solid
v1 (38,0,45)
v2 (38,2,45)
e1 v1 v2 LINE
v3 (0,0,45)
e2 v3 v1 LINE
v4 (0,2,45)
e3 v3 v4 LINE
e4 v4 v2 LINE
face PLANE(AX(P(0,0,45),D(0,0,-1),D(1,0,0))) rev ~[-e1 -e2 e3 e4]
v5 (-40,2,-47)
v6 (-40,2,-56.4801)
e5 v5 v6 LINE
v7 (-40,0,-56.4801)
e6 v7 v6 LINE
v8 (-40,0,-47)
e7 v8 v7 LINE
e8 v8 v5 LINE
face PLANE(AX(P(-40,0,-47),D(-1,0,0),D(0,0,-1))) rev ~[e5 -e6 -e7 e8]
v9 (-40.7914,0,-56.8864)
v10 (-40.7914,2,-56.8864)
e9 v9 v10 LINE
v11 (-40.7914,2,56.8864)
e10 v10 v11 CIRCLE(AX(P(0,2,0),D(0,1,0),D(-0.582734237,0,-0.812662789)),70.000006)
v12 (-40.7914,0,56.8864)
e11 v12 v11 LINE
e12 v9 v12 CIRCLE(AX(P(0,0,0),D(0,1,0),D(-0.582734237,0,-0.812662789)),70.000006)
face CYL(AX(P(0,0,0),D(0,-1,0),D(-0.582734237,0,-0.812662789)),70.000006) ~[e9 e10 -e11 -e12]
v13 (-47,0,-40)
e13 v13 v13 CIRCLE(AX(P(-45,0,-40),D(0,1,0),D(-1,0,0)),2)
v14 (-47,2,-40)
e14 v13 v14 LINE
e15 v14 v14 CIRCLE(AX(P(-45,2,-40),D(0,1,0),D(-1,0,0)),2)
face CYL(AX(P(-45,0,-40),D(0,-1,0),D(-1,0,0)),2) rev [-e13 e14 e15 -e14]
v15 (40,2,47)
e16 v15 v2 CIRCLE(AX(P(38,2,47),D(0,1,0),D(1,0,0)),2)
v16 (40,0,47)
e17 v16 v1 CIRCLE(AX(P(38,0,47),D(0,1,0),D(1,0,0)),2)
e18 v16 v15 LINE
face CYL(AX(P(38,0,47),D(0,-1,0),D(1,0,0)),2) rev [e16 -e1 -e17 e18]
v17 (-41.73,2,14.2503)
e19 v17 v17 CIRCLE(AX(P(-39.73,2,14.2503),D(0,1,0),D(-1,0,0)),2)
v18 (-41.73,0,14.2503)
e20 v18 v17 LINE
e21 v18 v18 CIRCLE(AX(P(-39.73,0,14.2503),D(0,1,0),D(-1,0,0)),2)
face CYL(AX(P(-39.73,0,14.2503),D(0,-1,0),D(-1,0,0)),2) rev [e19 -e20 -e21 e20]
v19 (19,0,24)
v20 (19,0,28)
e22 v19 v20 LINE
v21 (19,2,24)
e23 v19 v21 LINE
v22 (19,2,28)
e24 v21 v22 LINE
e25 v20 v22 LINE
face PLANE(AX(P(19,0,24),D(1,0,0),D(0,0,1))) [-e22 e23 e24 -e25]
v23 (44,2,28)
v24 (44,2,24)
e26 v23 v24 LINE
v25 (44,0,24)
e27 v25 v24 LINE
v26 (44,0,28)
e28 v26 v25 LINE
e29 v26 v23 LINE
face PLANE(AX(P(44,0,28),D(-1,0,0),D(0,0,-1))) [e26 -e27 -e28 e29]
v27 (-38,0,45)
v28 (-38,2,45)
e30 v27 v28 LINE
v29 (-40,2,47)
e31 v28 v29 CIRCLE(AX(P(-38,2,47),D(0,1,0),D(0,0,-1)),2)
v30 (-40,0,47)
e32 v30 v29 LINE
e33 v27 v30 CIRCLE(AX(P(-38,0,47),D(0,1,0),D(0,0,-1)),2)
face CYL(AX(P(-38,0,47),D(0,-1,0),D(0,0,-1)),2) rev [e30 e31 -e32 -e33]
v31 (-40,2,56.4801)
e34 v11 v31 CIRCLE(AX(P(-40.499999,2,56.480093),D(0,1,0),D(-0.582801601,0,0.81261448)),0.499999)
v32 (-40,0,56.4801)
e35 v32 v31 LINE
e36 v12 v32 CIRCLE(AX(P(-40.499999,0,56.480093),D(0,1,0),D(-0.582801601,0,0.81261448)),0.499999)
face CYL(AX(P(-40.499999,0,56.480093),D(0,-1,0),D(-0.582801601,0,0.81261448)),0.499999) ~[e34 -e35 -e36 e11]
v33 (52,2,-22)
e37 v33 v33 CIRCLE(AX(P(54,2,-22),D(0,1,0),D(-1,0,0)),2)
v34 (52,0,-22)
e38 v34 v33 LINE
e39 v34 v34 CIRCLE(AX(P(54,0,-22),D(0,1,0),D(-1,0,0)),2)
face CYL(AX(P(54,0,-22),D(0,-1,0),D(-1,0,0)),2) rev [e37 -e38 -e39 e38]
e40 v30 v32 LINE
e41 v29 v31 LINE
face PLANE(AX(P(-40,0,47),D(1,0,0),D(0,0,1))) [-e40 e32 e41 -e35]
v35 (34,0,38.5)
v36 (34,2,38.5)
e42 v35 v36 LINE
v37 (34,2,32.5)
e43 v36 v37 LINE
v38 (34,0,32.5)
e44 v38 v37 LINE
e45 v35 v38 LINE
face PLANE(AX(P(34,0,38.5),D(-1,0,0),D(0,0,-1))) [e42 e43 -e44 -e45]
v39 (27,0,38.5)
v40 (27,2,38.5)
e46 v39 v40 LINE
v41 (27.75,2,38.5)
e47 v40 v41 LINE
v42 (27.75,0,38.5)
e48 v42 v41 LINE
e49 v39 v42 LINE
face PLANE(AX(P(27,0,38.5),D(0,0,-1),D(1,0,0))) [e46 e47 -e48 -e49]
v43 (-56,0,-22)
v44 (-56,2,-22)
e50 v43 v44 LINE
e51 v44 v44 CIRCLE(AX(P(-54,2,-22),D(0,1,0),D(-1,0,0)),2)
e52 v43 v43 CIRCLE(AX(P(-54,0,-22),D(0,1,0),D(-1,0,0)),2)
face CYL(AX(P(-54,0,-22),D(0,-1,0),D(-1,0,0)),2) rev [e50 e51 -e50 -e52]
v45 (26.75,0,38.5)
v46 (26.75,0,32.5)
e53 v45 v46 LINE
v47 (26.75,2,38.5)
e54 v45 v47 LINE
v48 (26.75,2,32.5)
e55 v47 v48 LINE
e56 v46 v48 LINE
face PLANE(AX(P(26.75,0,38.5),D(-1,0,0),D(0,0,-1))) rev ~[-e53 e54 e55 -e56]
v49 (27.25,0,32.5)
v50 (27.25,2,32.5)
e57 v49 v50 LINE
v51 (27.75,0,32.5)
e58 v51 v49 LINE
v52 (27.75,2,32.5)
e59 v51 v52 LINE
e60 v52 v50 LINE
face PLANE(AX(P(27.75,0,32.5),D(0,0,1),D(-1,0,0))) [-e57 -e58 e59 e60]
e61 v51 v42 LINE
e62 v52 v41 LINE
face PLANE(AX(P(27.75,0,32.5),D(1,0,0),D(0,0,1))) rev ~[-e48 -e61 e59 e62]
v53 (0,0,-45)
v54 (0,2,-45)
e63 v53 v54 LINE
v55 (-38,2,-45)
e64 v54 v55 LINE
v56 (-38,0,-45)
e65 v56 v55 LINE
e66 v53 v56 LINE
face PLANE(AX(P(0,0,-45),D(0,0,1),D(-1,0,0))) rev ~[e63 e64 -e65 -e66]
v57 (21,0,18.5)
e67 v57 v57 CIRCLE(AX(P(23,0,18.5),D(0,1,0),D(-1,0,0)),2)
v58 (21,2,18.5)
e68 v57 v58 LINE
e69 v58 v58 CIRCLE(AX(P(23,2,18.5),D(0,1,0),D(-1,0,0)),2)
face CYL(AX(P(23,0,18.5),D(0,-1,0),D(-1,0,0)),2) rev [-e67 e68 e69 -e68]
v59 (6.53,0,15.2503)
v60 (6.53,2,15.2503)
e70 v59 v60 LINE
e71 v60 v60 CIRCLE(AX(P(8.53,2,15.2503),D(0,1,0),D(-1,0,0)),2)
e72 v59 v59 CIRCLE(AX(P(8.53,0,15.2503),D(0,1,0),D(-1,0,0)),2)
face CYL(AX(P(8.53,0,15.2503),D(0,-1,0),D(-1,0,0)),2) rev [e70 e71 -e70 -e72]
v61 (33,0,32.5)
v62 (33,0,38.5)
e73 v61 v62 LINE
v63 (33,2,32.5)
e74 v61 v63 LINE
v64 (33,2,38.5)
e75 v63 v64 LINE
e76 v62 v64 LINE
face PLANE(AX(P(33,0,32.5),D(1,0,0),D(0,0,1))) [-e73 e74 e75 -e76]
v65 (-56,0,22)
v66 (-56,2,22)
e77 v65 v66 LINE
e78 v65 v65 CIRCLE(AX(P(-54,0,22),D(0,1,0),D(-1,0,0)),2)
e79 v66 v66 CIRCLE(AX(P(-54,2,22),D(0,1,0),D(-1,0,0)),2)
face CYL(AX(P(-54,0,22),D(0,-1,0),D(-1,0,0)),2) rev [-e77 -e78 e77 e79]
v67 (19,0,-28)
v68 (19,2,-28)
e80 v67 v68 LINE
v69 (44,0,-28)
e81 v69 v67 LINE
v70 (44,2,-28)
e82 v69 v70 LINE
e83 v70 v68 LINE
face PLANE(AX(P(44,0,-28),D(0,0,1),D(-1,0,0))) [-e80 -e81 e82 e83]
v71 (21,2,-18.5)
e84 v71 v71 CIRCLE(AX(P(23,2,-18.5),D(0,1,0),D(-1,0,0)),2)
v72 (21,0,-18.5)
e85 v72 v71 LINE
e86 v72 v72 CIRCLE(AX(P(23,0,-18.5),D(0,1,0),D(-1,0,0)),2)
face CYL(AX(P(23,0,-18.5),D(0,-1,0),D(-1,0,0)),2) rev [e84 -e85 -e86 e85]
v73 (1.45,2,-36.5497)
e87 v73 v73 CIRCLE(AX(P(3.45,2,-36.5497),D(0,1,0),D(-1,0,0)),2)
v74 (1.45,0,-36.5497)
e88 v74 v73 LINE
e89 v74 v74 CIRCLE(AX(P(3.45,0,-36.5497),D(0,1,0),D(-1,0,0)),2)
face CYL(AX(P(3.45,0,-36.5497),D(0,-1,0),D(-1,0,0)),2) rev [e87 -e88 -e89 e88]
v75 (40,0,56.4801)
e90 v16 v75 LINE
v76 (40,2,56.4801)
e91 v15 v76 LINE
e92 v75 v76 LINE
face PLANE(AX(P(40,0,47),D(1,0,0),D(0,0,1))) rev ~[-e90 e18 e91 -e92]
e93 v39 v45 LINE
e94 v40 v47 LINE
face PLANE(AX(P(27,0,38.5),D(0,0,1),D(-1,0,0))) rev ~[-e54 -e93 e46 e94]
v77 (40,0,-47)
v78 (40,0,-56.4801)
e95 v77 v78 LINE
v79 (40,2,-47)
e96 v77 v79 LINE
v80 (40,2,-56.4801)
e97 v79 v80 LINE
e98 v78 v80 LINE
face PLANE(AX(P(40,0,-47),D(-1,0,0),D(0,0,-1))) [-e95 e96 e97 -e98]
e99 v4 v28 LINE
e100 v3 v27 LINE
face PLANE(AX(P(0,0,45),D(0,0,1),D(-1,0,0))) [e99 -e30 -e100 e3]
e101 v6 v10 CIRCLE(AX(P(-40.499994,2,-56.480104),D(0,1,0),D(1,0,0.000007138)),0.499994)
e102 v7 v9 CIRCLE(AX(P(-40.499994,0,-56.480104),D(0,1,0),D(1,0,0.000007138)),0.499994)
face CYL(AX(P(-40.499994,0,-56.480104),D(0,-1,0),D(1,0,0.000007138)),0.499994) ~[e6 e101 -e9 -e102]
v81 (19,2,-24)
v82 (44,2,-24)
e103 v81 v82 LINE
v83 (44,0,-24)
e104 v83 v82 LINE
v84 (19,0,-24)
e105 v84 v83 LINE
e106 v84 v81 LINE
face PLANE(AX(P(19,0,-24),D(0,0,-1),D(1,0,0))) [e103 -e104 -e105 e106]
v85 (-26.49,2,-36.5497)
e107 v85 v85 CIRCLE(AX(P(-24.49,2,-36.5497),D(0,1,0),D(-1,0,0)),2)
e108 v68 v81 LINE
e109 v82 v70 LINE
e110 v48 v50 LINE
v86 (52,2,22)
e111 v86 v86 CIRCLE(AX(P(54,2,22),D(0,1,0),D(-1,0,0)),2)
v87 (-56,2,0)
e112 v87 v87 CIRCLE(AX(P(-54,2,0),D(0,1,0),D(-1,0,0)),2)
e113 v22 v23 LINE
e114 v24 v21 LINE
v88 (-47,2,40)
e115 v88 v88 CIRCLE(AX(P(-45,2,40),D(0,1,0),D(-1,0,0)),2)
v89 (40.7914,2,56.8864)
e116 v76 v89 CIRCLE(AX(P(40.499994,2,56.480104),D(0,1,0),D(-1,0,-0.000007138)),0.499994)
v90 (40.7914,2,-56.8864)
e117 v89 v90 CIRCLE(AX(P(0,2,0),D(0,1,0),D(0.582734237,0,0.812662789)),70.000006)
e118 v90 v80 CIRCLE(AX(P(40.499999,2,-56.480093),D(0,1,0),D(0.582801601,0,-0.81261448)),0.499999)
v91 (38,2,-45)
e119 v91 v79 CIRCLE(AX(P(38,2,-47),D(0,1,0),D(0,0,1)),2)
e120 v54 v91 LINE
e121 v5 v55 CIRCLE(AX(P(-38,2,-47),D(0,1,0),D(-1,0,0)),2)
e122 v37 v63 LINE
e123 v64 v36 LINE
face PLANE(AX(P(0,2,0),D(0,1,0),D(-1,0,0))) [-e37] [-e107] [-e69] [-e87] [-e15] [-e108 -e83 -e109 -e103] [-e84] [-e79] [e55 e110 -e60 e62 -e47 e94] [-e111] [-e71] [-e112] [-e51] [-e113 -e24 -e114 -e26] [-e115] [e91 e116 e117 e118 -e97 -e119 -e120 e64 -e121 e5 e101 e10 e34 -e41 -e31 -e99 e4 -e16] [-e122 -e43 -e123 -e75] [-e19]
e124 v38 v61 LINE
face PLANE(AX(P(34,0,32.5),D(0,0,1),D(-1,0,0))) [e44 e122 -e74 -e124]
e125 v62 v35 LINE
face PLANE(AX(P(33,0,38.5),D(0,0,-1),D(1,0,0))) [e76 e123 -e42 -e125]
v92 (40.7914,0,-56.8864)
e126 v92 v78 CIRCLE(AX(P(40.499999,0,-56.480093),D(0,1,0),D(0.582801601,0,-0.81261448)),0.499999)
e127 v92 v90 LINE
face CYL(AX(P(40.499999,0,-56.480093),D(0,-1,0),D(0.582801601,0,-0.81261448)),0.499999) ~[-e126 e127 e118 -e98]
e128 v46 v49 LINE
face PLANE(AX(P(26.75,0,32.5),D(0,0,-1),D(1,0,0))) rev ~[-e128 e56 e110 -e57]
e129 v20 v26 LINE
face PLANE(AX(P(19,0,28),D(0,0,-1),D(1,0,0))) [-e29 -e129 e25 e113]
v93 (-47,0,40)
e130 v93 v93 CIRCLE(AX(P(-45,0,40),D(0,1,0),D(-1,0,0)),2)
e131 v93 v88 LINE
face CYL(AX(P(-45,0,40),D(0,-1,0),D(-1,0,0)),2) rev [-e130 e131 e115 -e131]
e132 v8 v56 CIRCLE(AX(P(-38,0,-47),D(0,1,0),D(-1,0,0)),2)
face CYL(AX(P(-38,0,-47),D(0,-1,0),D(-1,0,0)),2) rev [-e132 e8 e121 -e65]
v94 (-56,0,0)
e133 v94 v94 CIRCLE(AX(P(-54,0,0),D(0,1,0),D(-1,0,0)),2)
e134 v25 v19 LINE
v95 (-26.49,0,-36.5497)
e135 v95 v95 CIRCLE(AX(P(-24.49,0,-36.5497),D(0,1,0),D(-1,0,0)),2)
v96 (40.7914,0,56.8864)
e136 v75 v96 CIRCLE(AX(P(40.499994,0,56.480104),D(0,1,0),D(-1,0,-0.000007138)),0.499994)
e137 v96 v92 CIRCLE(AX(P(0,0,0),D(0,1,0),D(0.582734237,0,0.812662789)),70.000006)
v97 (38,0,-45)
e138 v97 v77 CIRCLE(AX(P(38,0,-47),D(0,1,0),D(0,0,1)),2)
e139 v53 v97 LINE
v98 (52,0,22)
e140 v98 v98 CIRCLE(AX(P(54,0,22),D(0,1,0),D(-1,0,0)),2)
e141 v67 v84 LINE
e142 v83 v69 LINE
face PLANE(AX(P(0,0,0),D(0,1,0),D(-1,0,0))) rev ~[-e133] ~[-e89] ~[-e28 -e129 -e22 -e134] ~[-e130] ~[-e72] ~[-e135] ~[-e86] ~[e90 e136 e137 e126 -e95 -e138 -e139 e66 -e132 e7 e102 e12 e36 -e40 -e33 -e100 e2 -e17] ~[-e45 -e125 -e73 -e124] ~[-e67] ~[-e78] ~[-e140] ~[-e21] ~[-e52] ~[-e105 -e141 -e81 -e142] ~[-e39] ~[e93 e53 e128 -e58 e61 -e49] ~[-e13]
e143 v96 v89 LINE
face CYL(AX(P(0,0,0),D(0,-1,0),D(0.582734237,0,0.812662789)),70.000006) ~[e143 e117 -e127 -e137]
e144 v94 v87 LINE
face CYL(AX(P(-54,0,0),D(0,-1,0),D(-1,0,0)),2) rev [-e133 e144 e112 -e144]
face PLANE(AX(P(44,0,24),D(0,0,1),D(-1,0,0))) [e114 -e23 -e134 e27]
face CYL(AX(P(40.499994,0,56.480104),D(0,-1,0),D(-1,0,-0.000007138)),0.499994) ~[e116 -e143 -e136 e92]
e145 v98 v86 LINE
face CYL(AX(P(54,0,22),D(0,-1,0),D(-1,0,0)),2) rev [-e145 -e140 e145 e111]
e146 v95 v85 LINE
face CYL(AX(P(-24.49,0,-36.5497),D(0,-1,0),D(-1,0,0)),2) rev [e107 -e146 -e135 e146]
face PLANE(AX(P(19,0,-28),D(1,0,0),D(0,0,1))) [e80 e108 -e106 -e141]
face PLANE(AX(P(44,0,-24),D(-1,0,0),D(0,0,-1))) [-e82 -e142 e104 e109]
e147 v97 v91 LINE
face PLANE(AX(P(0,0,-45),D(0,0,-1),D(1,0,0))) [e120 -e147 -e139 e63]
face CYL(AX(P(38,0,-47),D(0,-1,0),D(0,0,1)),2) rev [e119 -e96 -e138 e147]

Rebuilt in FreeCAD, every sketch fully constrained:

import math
import FreeCAD as App
import Part
import Sketcher
from FreeCAD import Vector


def add_polygon(sketch, points):
    """Adds a closed chain of lines whose ends are joined by coincident constraints."""
    first, n = sketch.GeometryCount, len(points)
    for a, b in zip(points, points[1:] + points[:1]):
        sketch.addGeometry(Part.LineSegment(App.Vector(*a, 0), App.Vector(*b, 0)), False)
    for i in range(n):
        sketch.addConstraint(Sketcher.Constraint("Coincident", first + i, 2, first + (i + 1) % n, 1))

doc = App.newDocument("Part")
body = doc.addObject("PartDesign::Body", "Body")

# Sketch on XZ plane
sketch1 = body.newObject("Sketcher::SketchObject", "Sketch")
sketch1.AttachmentSupport = (doc.getObject("XZ_Plane"), [""])
sketch1.MapMode = "FlatFace"
sketch1.addGeometry(Part.ArcOfCircle(Part.Circle(Vector(40.5, 56.4801, 0), Vector(0, 0, 1), 0.5), math.radians(54.351756), math.radians(180)), False)  # 0
sketch1.addGeometry(Part.ArcOfCircle(Part.Circle(Vector(0, 0, 0), Vector(0, 0, 1), 70.000006), math.radians(-54.356915), math.radians(54.356915)), False)  # 1
sketch1.addGeometry(Part.ArcOfCircle(Part.Circle(Vector(40.5, -56.4801, 0), Vector(0, 0, 1), 0.499994), math.radians(180), math.radians(305.648244)), False)  # 2
sketch1.addGeometry(Part.LineSegment(Vector(40, -56.4801, 0), Vector(40, -47, 0)), False)  # 3
sketch1.addGeometry(Part.ArcOfCircle(Part.Circle(Vector(38, -47, 0), Vector(0, 0, 1), 2), math.radians(0), math.radians(90)), False)  # 4
sketch1.addGeometry(Part.LineSegment(Vector(38, -45, 0), Vector(-38, -45, 0)), False)  # 5
sketch1.addGeometry(Part.ArcOfCircle(Part.Circle(Vector(-38, -47, 0), Vector(0, 0, 1), 2), math.radians(90), math.radians(180)), False)  # 6
sketch1.addGeometry(Part.LineSegment(Vector(-40, -47, 0), Vector(-40, -56.4801, 0)), False)  # 7
sketch1.addGeometry(Part.ArcOfCircle(Part.Circle(Vector(-40.5, -56.4801, 0), Vector(0, 0, 1), 0.5), math.radians(-125.648244), math.radians(0)), False)  # 8
sketch1.addGeometry(Part.ArcOfCircle(Part.Circle(Vector(0, 0, 0), Vector(0, 0, 1), 70.000006), math.radians(125.643085), math.radians(234.356915)), False)  # 9
sketch1.addGeometry(Part.ArcOfCircle(Part.Circle(Vector(-40.5, 56.4801, 0), Vector(0, 0, 1), 0.499994), math.radians(0), math.radians(125.648244)), False)  # 10
sketch1.addGeometry(Part.LineSegment(Vector(-40, 56.4801, 0), Vector(-40, 47, 0)), False)  # 11
sketch1.addGeometry(Part.ArcOfCircle(Part.Circle(Vector(-38, 47, 0), Vector(0, 0, 1), 2), math.radians(180), math.radians(270)), False)  # 12
sketch1.addGeometry(Part.LineSegment(Vector(-38, 45, 0), Vector(38, 45, 0)), False)  # 13
sketch1.addGeometry(Part.ArcOfCircle(Part.Circle(Vector(38, 47, 0), Vector(0, 0, 1), 2), math.radians(-90), math.radians(0)), False)  # 14
sketch1.addGeometry(Part.LineSegment(Vector(40, 47, 0), Vector(40, 56.4801, 0)), False)  # 15
sketch1.addGeometry(Part.Circle(Vector(3.45, -36.5497, 0), Vector(0, 0, 1), 2), False)  # 16
sketch1.addGeometry(Part.Circle(Vector(54, -22, 0), Vector(0, 0, 1), 2), False)  # 17
add_polygon(sketch1, [(44, -24), (19, -24), (19, -28), (44, -28)])  # lines 18-21
sketch1.addGeometry(Part.Circle(Vector(23, -18.5, 0), Vector(0, 0, 1), 2), False)  # 22
sketch1.addGeometry(Part.Circle(Vector(-24.49, -36.5497, 0), Vector(0, 0, 1), 2), False)  # 23
sketch1.addGeometry(Part.Circle(Vector(-45, -40, 0), Vector(0, 0, 1), 2), False)  # 24
sketch1.addGeometry(Part.Circle(Vector(-54, -22, 0), Vector(0, 0, 1), 2), False)  # 25
sketch1.addGeometry(Part.Circle(Vector(54, 22, 0), Vector(0, 0, 1), 2), False)  # 26
sketch1.addGeometry(Part.Circle(Vector(23, 18.5, 0), Vector(0, 0, 1), 2), False)  # 27
add_polygon(sketch1, [(44, 28), (19, 28), (19, 24), (44, 24)])  # lines 28-31
sketch1.addGeometry(Part.Circle(Vector(8.53, 15.2503, 0), Vector(0, 0, 1), 2), False)  # 32
add_polygon(sketch1, [(34, 38.5), (33, 38.5), (33, 32.5), (34, 32.5)])  # lines 33-36
add_polygon(sketch1, [(26.75, 32.5), (27.75, 32.5), (27.75, 38.5), (26.75, 38.5)])  # lines 37-40
sketch1.addGeometry(Part.Circle(Vector(-54, 0, 0), Vector(0, 0, 1), 2), False)  # 41
sketch1.addGeometry(Part.Circle(Vector(-39.73, 14.2503, 0), Vector(0, 0, 1), 2), False)  # 42
sketch1.addGeometry(Part.Circle(Vector(-54, 22, 0), Vector(0, 0, 1), 2), False)  # 43
sketch1.addGeometry(Part.Circle(Vector(-45, 40, 0), Vector(0, 0, 1), 2), False)  # 44
sketch1.addConstraint(Sketcher.Constraint("Tangent", 0, 1, 1, 2))
sketch1.addConstraint(Sketcher.Constraint("Tangent", 1, 1, 2, 2))
sketch1.addConstraint(Sketcher.Constraint("Tangent", 2, 1, 3, 1))
sketch1.addConstraint(Sketcher.Constraint("Tangent", 3, 2, 4, 1))
sketch1.addConstraint(Sketcher.Constraint("Tangent", 4, 2, 5, 1))
sketch1.addConstraint(Sketcher.Constraint("Tangent", 5, 2, 6, 1))
sketch1.addConstraint(Sketcher.Constraint("Tangent", 6, 2, 7, 1))
sketch1.addConstraint(Sketcher.Constraint("Tangent", 7, 2, 8, 2))
sketch1.addConstraint(Sketcher.Constraint("Tangent", 8, 1, 9, 2))
sketch1.addConstraint(Sketcher.Constraint("Tangent", 9, 1, 10, 2))
sketch1.addConstraint(Sketcher.Constraint("Tangent", 10, 1, 11, 1))
sketch1.addConstraint(Sketcher.Constraint("Tangent", 11, 2, 12, 1))
sketch1.addConstraint(Sketcher.Constraint("Tangent", 12, 2, 13, 1))
sketch1.addConstraint(Sketcher.Constraint("Tangent", 13, 2, 14, 1))
sketch1.addConstraint(Sketcher.Constraint("Tangent", 14, 2, 15, 1))
sketch1.addConstraint(Sketcher.Constraint("Tangent", 15, 2, 0, 2))
sketch1.addConstraint(Sketcher.Constraint("Vertical", 3))
sketch1.addConstraint(Sketcher.Constraint("Horizontal", 5))
sketch1.addConstraint(Sketcher.Constraint("Vertical", 7))
sketch1.addConstraint(Sketcher.Constraint("Vertical", 11))
sketch1.addConstraint(Sketcher.Constraint("Horizontal", 13))
sketch1.addConstraint(Sketcher.Constraint("Vertical", 15))
sketch1.addConstraint(Sketcher.Constraint("Horizontal", 18))
sketch1.addConstraint(Sketcher.Constraint("Vertical", 19))
sketch1.addConstraint(Sketcher.Constraint("Horizontal", 20))
sketch1.addConstraint(Sketcher.Constraint("Vertical", 21))
sketch1.addConstraint(Sketcher.Constraint("Horizontal", 28))
sketch1.addConstraint(Sketcher.Constraint("Vertical", 29))
sketch1.addConstraint(Sketcher.Constraint("Horizontal", 30))
sketch1.addConstraint(Sketcher.Constraint("Vertical", 31))
sketch1.addConstraint(Sketcher.Constraint("Horizontal", 33))
sketch1.addConstraint(Sketcher.Constraint("Vertical", 34))
sketch1.addConstraint(Sketcher.Constraint("Horizontal", 35))
sketch1.addConstraint(Sketcher.Constraint("Vertical", 36))
sketch1.addConstraint(Sketcher.Constraint("Horizontal", 37))
sketch1.addConstraint(Sketcher.Constraint("Vertical", 38))
sketch1.addConstraint(Sketcher.Constraint("Horizontal", 39))
sketch1.addConstraint(Sketcher.Constraint("Vertical", 40))
sketch1.addConstraint(Sketcher.Constraint("Coincident", 1, 3, -1, 1))
sketch1.addConstraint(Sketcher.Constraint("Coincident", 9, 3, -1, 1))
sketch1.addConstraint(Sketcher.Constraint("Equal", 0, 2))
sketch1.addConstraint(Sketcher.Constraint("Equal", 4, 6))
sketch1.addConstraint(Sketcher.Constraint("Equal", 2, 8))
sketch1.addConstraint(Sketcher.Constraint("Equal", 1, 9))
sketch1.addConstraint(Sketcher.Constraint("Equal", 8, 10))
sketch1.addConstraint(Sketcher.Constraint("Equal", 6, 12))
sketch1.addConstraint(Sketcher.Constraint("Equal", 12, 14))
sketch1.addConstraint(Sketcher.Constraint("Equal", 14, 16))
sketch1.addConstraint(Sketcher.Constraint("Equal", 16, 17))
sketch1.addConstraint(Sketcher.Constraint("Equal", 17, 22))
sketch1.addConstraint(Sketcher.Constraint("Equal", 22, 23))
sketch1.addConstraint(Sketcher.Constraint("Equal", 23, 24))
sketch1.addConstraint(Sketcher.Constraint("Equal", 24, 25))
sketch1.addConstraint(Sketcher.Constraint("Equal", 25, 26))
sketch1.addConstraint(Sketcher.Constraint("Equal", 26, 27))
sketch1.addConstraint(Sketcher.Constraint("Equal", 27, 32))
sketch1.addConstraint(Sketcher.Constraint("Equal", 32, 41))
sketch1.addConstraint(Sketcher.Constraint("Equal", 41, 42))
sketch1.addConstraint(Sketcher.Constraint("Equal", 42, 43))
sketch1.addConstraint(Sketcher.Constraint("Equal", 43, 44))
sketch1.addConstraint(Sketcher.Constraint("Symmetric", 4, 3, 12, 3, -1, 1))
sketch1.addConstraint(Sketcher.Constraint("Symmetric", 25, 3, 26, 3, -1, 1))
sketch1.addConstraint(Sketcher.Constraint("Symmetric", 17, 3, 43, 3, -1, 1))
sketch1.addConstraint(Sketcher.Constraint("Symmetric", 17, 3, 25, 3, -2))
sketch1.addConstraint(Sketcher.Constraint("Symmetric", 22, 3, 27, 3, -1))
sketch1.addConstraint(Sketcher.Constraint("Symmetric", 24, 3, 44, 3, -1))
sketch1.addConstraint(Sketcher.Constraint("Symmetric", 19, 2, 28, 2, -1))
sketch1.addConstraint(Sketcher.Constraint("Symmetric", 21, 2, 30, 2, -1))
sketch1.addConstraint(Sketcher.Constraint("PointOnObject", 41, 3, -1))
sketch1.addConstraint(Sketcher.Constraint("Horizontal", 2, 3, 8, 3))
sketch1.addConstraint(Sketcher.Constraint("Horizontal", 0, 3, 10, 3))
sketch1.addConstraint(Sketcher.Constraint("Horizontal", 16, 3, 23, 3))
sketch1.addConstraint(Sketcher.Constraint("Horizontal", 35, 2, 37, 2))
sketch1.addConstraint(Sketcher.Constraint("Horizontal", 36, 2, 38, 2))
sketch1.addConstraint(Sketcher.Constraint("Vertical", 25, 3, 41, 3))
sketch1.addConstraint(Sketcher.Constraint("Equal", 35, 37))
sketch1.addConstraint(Sketcher.Constraint("Radius", 0, 0.5))
sketch1.addConstraint(Sketcher.Constraint("Diameter", 16, 4.0))
sketch1.addConstraint(Sketcher.Constraint("Radius", 1, 70.0))
sketch1.addConstraint(Sketcher.Constraint("DistanceX", 5, 2, 5, 1, 76.0))
sketch1.addConstraint(Sketcher.Constraint("DistanceX", 18, 2, 18, 1, 25.0))
sketch1.addConstraint(Sketcher.Constraint("DistanceX", 33, 2, 33, 1, 1.0))
sketch1.addConstraint(Sketcher.Constraint("DistanceY", 19, 2, 19, 1, 4.0))
sketch1.addConstraint(Sketcher.Constraint("DistanceY", 34, 2, 34, 1, 6.0))
sketch1.addConstraint(Sketcher.Constraint("DistanceY", 4, 3, -1, 1, 47.0))
sketch1.addConstraint(Sketcher.Constraint("DistanceX", -1, 1, 17, 3, 54.0))
sketch1.addConstraint(Sketcher.Constraint("DistanceY", 17, 3, -1, 1, 22.0))
sketch1.addConstraint(Sketcher.Constraint("DistanceX", -1, 1, 22, 3, 23.0))
sketch1.addConstraint(Sketcher.Constraint("DistanceX", 24, 3, -1, 1, 45.0))
sketch1.addConstraint(Sketcher.Constraint("DistanceY", 24, 3, -1, 1, 40.0))
sketch1.addConstraint(Sketcher.Constraint("DistanceX", -1, 1, 18, 2, 19.0))
sketch1.addConstraint(Sketcher.Constraint("DistanceY", 18, 2, -1, 1, 24.0))
sketch1.addConstraint(Sketcher.Constraint("DistanceX", -1, 1, 33, 2, 33.0))
sketch1.addConstraint(Sketcher.Constraint("DistanceY", 22, 3, 27, 3, 37.0))
sketch1.addConstraint(Sketcher.Constraint("DistanceY", -1, 1, 33, 2, 38.5))
sketch1.addConstraint(Sketcher.Constraint("DistanceX", -1, 1, 16, 3, 3.45))
sketch1.addConstraint(Sketcher.Constraint("DistanceX", 23, 3, -1, 1, 24.49))
sketch1.addConstraint(Sketcher.Constraint("DistanceX", -1, 1, 32, 3, 8.53))
sketch1.addConstraint(Sketcher.Constraint("DistanceX", 42, 3, -1, 1, 39.73))
sketch1.addConstraint(Sketcher.Constraint("DistanceX", -1, 1, 37, 2, 27.75))
sketch1.addConstraint(Sketcher.Constraint("DistanceY", 32, 3, 0, 1, 41.636))
sketch1.addConstraint(Sketcher.Constraint("DistanceY", 42, 3, 9, 1, 42.636))
sketch1.addConstraint(Sketcher.Constraint("DistanceY", 16, 3, -1, 1, 36.5497))
pad1 = body.newObject("PartDesign::Pad", "Pad")
pad1.Profile = sketch1
pad1.Length = 2
pad1.Reversed = True

doc.recompute()
